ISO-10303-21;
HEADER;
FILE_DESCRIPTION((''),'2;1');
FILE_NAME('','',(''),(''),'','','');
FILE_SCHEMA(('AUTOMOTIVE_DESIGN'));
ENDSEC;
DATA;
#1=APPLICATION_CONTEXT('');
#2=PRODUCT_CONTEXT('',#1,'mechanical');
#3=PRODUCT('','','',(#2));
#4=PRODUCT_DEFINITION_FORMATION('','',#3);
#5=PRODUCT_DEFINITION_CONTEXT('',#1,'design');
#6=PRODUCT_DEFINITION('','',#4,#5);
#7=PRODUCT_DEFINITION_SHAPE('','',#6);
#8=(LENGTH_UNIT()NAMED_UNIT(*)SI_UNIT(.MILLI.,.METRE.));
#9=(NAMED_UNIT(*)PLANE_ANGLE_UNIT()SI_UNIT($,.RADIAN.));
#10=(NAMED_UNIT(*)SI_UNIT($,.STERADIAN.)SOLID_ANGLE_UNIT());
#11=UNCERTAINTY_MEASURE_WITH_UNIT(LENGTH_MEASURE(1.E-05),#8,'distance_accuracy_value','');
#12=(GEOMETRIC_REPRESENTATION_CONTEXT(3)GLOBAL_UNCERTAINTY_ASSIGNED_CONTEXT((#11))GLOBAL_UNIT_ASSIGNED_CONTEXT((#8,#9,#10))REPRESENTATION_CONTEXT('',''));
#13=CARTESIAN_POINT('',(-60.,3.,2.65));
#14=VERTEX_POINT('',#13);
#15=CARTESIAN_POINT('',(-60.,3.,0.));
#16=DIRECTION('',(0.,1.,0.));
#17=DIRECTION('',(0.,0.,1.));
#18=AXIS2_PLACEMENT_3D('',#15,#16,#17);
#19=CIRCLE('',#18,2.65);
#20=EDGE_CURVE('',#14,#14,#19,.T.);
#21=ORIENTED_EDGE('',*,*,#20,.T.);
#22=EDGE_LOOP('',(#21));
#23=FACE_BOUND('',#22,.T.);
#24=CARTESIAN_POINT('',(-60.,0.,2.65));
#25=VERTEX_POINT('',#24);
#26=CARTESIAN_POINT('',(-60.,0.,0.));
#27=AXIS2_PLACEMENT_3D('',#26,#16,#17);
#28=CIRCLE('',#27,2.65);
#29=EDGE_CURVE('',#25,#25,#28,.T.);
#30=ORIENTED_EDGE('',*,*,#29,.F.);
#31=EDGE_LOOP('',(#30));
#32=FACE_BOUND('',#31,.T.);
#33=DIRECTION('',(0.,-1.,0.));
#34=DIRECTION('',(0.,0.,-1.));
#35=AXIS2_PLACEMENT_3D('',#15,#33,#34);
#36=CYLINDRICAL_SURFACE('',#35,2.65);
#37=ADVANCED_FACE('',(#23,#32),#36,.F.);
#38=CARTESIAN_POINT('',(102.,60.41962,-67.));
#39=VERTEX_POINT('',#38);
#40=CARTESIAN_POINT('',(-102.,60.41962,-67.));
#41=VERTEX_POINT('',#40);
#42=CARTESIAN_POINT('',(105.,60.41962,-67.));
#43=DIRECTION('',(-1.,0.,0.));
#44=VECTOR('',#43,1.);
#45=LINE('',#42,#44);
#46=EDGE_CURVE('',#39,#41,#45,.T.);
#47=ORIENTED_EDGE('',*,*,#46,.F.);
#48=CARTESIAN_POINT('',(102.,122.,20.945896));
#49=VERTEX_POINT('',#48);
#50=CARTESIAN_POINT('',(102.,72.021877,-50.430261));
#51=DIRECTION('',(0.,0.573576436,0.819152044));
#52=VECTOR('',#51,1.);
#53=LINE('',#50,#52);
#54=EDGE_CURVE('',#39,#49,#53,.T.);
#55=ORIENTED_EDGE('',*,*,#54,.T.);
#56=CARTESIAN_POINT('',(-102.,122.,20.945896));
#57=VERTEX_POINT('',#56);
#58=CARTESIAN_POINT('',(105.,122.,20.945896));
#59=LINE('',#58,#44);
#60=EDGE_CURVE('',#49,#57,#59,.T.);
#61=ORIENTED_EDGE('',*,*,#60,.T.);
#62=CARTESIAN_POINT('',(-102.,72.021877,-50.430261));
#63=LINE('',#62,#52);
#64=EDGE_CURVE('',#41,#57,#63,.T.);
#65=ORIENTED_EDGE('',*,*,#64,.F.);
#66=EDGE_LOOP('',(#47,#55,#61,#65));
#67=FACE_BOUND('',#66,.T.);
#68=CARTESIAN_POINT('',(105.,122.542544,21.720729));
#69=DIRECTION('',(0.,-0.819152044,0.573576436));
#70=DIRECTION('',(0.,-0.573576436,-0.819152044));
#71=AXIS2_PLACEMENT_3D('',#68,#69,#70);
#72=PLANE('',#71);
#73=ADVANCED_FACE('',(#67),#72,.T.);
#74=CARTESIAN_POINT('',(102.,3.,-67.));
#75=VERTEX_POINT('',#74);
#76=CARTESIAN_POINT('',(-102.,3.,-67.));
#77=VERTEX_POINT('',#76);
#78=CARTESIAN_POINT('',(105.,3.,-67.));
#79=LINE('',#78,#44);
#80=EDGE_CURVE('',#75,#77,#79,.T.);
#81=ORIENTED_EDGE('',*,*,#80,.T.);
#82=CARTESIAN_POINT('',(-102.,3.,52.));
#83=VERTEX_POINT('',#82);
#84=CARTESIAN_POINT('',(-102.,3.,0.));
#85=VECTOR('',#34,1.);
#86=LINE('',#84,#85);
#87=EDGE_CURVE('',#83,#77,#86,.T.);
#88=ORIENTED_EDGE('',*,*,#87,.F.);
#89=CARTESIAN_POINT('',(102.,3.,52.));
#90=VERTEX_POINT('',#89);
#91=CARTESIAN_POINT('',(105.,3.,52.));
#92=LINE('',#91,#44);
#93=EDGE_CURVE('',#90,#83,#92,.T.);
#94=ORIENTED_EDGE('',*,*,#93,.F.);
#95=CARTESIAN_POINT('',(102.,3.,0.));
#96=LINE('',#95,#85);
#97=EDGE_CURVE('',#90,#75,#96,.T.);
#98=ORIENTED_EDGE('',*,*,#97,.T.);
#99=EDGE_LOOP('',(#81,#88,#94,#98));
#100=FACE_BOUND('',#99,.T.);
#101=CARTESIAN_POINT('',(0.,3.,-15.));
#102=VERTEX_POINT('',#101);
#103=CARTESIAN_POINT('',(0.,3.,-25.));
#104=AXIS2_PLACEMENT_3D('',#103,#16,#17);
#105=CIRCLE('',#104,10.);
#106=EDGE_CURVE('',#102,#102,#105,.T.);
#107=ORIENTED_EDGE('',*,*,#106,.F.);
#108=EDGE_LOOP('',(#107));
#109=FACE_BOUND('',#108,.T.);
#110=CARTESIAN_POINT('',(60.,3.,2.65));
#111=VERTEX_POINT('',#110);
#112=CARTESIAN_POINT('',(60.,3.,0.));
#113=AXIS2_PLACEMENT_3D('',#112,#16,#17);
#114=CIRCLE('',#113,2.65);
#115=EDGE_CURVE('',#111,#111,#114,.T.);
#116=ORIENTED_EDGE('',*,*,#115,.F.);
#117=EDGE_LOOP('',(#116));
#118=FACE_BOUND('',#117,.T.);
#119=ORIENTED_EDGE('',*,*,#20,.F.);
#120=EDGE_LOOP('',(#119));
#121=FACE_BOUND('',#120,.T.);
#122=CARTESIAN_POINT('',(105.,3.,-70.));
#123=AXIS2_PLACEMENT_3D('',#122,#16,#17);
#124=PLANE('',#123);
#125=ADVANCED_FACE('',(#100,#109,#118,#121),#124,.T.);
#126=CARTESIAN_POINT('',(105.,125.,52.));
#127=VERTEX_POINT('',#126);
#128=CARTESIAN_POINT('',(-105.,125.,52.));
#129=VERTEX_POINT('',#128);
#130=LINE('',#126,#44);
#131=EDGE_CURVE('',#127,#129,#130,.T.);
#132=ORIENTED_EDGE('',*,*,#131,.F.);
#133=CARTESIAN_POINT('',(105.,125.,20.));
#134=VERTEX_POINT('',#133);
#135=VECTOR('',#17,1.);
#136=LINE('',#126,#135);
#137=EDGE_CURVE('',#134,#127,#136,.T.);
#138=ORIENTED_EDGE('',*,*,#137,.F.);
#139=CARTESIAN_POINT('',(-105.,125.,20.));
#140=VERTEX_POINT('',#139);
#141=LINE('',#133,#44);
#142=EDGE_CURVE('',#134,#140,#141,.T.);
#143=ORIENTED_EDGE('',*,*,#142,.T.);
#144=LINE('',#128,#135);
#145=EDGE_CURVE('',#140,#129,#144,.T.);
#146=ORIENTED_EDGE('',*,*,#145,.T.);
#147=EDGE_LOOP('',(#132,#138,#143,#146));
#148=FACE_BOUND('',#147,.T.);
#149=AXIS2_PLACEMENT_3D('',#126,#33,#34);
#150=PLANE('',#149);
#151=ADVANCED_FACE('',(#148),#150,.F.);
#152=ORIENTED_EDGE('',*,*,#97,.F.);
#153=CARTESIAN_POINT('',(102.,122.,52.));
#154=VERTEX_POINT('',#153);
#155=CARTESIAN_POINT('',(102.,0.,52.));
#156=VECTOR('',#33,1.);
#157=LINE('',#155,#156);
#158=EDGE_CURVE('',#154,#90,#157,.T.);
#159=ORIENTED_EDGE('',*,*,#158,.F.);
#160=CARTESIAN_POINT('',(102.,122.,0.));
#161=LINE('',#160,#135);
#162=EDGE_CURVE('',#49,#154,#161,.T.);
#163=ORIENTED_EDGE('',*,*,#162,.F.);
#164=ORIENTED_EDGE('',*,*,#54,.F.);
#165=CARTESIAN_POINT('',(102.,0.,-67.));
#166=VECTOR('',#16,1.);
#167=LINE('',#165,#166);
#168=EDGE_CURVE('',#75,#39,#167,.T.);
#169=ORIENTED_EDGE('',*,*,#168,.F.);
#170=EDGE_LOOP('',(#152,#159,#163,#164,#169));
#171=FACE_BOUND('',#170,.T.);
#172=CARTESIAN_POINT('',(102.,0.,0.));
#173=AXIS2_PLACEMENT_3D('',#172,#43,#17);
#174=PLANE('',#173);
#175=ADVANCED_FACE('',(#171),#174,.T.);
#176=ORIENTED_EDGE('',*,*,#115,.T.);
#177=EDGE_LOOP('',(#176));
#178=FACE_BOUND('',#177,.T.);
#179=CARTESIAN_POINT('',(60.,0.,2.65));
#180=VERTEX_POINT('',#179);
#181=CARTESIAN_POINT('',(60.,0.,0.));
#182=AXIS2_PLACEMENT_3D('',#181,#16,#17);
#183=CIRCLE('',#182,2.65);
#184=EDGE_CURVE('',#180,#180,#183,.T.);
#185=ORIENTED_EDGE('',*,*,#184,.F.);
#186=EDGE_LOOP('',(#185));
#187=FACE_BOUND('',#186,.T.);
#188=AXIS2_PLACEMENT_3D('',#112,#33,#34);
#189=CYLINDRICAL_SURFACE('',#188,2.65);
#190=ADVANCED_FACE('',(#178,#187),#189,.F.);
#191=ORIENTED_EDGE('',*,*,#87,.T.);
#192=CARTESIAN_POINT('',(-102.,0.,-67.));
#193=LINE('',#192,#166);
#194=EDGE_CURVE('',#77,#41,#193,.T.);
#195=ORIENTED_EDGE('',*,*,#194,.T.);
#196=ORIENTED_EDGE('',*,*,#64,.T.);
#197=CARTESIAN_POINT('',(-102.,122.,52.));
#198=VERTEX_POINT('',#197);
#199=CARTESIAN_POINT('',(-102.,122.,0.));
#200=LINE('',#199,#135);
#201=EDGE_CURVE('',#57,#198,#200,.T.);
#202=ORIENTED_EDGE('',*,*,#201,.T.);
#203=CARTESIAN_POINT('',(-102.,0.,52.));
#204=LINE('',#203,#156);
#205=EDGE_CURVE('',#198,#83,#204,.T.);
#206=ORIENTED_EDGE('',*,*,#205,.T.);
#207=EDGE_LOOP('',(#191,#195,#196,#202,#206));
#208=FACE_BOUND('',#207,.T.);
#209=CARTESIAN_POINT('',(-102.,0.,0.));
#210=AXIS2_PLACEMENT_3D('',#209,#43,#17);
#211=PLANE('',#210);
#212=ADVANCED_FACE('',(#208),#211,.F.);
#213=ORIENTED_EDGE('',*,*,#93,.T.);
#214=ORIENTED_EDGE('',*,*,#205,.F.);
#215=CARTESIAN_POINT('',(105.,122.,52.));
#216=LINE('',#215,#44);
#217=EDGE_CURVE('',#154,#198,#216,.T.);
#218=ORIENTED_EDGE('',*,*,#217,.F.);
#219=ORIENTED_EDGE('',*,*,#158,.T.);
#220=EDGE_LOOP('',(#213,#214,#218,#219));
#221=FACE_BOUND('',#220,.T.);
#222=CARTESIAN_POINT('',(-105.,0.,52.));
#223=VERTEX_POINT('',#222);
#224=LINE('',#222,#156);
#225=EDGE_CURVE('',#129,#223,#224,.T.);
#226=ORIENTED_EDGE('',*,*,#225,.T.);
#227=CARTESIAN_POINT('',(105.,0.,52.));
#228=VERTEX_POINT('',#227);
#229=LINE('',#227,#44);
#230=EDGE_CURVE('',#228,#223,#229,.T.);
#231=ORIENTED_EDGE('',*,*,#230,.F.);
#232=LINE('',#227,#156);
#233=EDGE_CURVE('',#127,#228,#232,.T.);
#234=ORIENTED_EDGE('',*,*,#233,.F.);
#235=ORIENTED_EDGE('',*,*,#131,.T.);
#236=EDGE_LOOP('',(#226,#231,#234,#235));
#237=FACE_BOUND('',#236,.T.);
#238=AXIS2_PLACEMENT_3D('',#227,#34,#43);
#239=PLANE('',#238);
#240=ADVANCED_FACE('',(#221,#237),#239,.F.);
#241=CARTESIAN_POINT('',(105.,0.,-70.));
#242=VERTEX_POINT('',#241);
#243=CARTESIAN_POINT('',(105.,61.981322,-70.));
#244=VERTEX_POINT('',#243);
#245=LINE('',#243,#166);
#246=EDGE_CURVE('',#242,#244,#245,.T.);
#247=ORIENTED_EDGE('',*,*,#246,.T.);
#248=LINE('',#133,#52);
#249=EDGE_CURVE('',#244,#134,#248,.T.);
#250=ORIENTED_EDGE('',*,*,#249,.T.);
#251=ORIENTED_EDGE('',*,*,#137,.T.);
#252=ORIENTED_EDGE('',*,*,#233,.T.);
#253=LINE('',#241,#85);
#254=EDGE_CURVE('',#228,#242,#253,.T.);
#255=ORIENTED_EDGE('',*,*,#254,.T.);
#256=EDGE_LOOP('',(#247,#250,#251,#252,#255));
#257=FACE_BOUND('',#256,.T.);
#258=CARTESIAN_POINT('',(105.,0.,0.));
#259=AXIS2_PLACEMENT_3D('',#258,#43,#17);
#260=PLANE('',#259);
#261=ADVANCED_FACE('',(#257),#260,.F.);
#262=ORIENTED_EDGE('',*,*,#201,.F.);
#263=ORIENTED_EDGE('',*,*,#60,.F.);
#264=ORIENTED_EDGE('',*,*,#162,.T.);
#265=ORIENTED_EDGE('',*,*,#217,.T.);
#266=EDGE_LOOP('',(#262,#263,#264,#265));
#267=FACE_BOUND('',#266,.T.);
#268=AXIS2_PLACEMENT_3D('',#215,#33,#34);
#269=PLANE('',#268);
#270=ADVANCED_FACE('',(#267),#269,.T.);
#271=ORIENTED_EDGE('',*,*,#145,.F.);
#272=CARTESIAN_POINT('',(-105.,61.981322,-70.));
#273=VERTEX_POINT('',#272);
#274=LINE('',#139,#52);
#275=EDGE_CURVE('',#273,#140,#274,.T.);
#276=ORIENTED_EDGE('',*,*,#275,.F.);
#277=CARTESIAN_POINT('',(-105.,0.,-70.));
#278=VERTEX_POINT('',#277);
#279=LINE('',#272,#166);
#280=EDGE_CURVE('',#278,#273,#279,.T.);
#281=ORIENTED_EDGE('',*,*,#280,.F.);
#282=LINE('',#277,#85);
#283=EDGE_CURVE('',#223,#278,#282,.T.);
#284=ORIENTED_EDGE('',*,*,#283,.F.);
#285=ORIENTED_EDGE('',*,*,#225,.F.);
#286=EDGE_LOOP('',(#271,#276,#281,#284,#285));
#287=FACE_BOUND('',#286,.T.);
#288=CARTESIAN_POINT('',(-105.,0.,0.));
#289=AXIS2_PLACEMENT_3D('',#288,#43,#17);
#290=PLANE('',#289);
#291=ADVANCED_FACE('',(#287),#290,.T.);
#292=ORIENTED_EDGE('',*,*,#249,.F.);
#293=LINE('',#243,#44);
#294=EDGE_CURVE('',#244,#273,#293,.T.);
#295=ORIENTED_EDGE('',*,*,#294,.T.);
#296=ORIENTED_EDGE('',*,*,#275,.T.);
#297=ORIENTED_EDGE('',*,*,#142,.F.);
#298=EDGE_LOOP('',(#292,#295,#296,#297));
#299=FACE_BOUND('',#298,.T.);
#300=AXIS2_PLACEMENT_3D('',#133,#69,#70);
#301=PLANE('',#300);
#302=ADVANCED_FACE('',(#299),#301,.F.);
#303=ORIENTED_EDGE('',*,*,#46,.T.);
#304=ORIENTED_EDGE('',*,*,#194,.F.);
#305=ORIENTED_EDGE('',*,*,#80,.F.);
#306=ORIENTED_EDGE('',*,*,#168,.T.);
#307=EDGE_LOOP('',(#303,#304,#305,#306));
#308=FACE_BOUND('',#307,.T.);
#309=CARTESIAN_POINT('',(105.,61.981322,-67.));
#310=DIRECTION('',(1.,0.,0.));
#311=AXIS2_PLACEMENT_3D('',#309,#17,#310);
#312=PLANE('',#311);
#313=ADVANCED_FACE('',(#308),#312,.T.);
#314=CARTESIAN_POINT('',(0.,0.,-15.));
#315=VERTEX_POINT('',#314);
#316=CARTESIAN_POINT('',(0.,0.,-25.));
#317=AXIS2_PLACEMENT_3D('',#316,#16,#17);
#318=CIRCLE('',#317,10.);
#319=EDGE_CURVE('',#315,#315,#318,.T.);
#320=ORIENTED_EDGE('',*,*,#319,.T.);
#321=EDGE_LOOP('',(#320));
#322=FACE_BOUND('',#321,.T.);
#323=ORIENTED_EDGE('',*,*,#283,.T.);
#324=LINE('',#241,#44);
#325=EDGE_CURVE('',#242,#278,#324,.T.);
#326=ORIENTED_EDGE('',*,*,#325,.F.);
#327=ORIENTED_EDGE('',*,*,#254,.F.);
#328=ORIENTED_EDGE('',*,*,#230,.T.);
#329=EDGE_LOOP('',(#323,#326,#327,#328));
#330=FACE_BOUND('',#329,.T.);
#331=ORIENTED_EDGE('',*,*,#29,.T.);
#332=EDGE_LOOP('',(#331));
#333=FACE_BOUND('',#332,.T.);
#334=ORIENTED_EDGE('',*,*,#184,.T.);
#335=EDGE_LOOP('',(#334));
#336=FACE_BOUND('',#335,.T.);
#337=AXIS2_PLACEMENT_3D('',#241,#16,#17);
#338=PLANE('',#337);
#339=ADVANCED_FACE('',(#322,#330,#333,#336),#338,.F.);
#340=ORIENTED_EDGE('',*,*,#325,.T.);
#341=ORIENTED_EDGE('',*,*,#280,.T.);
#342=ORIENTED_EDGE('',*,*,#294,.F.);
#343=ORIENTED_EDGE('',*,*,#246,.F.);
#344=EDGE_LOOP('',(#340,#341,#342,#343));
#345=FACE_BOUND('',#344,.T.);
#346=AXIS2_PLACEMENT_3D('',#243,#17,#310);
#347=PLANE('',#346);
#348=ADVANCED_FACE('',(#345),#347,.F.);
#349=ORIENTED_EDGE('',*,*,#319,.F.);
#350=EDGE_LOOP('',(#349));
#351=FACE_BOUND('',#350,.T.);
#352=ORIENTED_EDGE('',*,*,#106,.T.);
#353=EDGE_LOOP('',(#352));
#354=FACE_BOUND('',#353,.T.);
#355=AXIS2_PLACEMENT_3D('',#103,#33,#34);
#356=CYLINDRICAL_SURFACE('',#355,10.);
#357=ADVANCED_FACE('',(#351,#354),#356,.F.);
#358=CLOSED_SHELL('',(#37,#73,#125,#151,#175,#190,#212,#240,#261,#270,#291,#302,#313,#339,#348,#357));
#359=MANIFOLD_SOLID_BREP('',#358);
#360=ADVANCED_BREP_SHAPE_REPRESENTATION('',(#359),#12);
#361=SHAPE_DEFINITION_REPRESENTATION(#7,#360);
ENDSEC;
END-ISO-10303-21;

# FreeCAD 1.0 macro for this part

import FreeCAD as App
import Part
import Sketcher
from FreeCAD import Vector
Q = App.Units.Quantity


def faces_at(feature, points):
    """Names of the faces that lie closest to the given points."""
    faces = feature.Shape.Faces
    near = lambda p: min(range(len(faces)), key=lambda i: faces[i].distToShape(Part.Vertex(*p))[0])
    return sorted({f"Face{near(p) + 1}" for p in points})


def add_polygon(sketch, points):
    """Adds a closed chain of lines whose ends are joined by coincident constraints."""
    first, n = sketch.GeometryCount, len(points)
    for a, b in zip(points, points[1:] + points[:1]):
        sketch.addGeometry(Part.LineSegment(App.Vector(*a, 0), App.Vector(*b, 0)), False)
    for i in range(n):
        sketch.addConstraint(Sketcher.Constraint("Coincident", first + i, 2, first + (i + 1) % n, 1))

doc = App.newDocument("Part")
body = doc.addObject("PartDesign::Body", "Body")

sketch1 = body.newObject("Sketcher::SketchObject", "Sketch")
sketch1.AttachmentSupport = (doc.getObject("YZ_Plane"), [""])
sketch1.MapMode = "FlatFace"
sketch1.AttachmentOffset = App.Placement(Vector(0, 0, -105), App.Rotation())
add_polygon(sketch1, [(0, 52), (0, -70), (61.981322, -70), (125, 20), (125, 52)])
sketch1.addConstraint([
    Sketcher.Constraint("Vertical", 0),
    Sketcher.Constraint("Horizontal", 1),
    Sketcher.Constraint("Vertical", 3),
    Sketcher.Constraint("Horizontal", 4),
    Sketcher.Constraint("PointOnObject", 0, 2, -2),
    Sketcher.Constraint("DistanceX", 4, 2, 4, 1, Q("125 mm")),
    Sketcher.Constraint("DistanceY", 0, 2, 0, 1, Q("122 mm")),
    Sketcher.Constraint("DistanceY", 3, 1, 3, 2, Q("32 mm")),
    Sketcher.Constraint("Angle", 2, Q("55 deg")),
    Sketcher.Constraint("DistanceY", 0, 2, -1, 1, Q("70 mm")),
])
pad1 = body.newObject("PartDesign::Pad", "Pad")
pad1.Profile = sketch1
pad1.Length = 210
doc.recompute()

thickness = body.newObject("PartDesign::Thickness", "Thickness")
thickness.Base = (pad1, faces_at(pad1, [(0, 62.5, 52)]))
thickness.Value = 3
thickness.Reversed = True
thickness.Join = "Intersection"

sketch2 = body.newObject("Sketcher::SketchObject", "Sketch001")
sketch2.AttachmentSupport = (doc.getObject("XZ_Plane"), [""])
sketch2.MapMode = "FlatFace"
sketch2.addGeometry([
    Part.Circle(Vector(60, 0, 0), Vector(0, 0, 1), 2.65),
    Part.Circle(Vector(-60, 0, 0), Vector(0, 0, 1), 2.65),
    Part.Circle(Vector(0, -25, 0), Vector(0, 0, 1), 10),
], False)
sketch2.addConstraint([
    Sketcher.Constraint("Equal", 0, 1),
    Sketcher.Constraint("Symmetric", 0, 3, 1, 3, -1, 1),
    Sketcher.Constraint("PointOnObject", 0, 3, -1),
    Sketcher.Constraint("PointOnObject", 2, 3, -2),
    Sketcher.Constraint("Diameter", 2, Q("20 mm")),
    Sketcher.Constraint("Diameter", 0, Q("5.3 mm")),
    Sketcher.Constraint("DistanceX", -1, 1, 0, 3, Q("60 mm")),
    Sketcher.Constraint("DistanceY", 2, 3, -1, 1, Q("25 mm")),
])
pocket1 = body.newObject("PartDesign::Pocket", "Pocket")
pocket1.Profile = sketch2
pocket1.Length = 3

doc.recompute()
